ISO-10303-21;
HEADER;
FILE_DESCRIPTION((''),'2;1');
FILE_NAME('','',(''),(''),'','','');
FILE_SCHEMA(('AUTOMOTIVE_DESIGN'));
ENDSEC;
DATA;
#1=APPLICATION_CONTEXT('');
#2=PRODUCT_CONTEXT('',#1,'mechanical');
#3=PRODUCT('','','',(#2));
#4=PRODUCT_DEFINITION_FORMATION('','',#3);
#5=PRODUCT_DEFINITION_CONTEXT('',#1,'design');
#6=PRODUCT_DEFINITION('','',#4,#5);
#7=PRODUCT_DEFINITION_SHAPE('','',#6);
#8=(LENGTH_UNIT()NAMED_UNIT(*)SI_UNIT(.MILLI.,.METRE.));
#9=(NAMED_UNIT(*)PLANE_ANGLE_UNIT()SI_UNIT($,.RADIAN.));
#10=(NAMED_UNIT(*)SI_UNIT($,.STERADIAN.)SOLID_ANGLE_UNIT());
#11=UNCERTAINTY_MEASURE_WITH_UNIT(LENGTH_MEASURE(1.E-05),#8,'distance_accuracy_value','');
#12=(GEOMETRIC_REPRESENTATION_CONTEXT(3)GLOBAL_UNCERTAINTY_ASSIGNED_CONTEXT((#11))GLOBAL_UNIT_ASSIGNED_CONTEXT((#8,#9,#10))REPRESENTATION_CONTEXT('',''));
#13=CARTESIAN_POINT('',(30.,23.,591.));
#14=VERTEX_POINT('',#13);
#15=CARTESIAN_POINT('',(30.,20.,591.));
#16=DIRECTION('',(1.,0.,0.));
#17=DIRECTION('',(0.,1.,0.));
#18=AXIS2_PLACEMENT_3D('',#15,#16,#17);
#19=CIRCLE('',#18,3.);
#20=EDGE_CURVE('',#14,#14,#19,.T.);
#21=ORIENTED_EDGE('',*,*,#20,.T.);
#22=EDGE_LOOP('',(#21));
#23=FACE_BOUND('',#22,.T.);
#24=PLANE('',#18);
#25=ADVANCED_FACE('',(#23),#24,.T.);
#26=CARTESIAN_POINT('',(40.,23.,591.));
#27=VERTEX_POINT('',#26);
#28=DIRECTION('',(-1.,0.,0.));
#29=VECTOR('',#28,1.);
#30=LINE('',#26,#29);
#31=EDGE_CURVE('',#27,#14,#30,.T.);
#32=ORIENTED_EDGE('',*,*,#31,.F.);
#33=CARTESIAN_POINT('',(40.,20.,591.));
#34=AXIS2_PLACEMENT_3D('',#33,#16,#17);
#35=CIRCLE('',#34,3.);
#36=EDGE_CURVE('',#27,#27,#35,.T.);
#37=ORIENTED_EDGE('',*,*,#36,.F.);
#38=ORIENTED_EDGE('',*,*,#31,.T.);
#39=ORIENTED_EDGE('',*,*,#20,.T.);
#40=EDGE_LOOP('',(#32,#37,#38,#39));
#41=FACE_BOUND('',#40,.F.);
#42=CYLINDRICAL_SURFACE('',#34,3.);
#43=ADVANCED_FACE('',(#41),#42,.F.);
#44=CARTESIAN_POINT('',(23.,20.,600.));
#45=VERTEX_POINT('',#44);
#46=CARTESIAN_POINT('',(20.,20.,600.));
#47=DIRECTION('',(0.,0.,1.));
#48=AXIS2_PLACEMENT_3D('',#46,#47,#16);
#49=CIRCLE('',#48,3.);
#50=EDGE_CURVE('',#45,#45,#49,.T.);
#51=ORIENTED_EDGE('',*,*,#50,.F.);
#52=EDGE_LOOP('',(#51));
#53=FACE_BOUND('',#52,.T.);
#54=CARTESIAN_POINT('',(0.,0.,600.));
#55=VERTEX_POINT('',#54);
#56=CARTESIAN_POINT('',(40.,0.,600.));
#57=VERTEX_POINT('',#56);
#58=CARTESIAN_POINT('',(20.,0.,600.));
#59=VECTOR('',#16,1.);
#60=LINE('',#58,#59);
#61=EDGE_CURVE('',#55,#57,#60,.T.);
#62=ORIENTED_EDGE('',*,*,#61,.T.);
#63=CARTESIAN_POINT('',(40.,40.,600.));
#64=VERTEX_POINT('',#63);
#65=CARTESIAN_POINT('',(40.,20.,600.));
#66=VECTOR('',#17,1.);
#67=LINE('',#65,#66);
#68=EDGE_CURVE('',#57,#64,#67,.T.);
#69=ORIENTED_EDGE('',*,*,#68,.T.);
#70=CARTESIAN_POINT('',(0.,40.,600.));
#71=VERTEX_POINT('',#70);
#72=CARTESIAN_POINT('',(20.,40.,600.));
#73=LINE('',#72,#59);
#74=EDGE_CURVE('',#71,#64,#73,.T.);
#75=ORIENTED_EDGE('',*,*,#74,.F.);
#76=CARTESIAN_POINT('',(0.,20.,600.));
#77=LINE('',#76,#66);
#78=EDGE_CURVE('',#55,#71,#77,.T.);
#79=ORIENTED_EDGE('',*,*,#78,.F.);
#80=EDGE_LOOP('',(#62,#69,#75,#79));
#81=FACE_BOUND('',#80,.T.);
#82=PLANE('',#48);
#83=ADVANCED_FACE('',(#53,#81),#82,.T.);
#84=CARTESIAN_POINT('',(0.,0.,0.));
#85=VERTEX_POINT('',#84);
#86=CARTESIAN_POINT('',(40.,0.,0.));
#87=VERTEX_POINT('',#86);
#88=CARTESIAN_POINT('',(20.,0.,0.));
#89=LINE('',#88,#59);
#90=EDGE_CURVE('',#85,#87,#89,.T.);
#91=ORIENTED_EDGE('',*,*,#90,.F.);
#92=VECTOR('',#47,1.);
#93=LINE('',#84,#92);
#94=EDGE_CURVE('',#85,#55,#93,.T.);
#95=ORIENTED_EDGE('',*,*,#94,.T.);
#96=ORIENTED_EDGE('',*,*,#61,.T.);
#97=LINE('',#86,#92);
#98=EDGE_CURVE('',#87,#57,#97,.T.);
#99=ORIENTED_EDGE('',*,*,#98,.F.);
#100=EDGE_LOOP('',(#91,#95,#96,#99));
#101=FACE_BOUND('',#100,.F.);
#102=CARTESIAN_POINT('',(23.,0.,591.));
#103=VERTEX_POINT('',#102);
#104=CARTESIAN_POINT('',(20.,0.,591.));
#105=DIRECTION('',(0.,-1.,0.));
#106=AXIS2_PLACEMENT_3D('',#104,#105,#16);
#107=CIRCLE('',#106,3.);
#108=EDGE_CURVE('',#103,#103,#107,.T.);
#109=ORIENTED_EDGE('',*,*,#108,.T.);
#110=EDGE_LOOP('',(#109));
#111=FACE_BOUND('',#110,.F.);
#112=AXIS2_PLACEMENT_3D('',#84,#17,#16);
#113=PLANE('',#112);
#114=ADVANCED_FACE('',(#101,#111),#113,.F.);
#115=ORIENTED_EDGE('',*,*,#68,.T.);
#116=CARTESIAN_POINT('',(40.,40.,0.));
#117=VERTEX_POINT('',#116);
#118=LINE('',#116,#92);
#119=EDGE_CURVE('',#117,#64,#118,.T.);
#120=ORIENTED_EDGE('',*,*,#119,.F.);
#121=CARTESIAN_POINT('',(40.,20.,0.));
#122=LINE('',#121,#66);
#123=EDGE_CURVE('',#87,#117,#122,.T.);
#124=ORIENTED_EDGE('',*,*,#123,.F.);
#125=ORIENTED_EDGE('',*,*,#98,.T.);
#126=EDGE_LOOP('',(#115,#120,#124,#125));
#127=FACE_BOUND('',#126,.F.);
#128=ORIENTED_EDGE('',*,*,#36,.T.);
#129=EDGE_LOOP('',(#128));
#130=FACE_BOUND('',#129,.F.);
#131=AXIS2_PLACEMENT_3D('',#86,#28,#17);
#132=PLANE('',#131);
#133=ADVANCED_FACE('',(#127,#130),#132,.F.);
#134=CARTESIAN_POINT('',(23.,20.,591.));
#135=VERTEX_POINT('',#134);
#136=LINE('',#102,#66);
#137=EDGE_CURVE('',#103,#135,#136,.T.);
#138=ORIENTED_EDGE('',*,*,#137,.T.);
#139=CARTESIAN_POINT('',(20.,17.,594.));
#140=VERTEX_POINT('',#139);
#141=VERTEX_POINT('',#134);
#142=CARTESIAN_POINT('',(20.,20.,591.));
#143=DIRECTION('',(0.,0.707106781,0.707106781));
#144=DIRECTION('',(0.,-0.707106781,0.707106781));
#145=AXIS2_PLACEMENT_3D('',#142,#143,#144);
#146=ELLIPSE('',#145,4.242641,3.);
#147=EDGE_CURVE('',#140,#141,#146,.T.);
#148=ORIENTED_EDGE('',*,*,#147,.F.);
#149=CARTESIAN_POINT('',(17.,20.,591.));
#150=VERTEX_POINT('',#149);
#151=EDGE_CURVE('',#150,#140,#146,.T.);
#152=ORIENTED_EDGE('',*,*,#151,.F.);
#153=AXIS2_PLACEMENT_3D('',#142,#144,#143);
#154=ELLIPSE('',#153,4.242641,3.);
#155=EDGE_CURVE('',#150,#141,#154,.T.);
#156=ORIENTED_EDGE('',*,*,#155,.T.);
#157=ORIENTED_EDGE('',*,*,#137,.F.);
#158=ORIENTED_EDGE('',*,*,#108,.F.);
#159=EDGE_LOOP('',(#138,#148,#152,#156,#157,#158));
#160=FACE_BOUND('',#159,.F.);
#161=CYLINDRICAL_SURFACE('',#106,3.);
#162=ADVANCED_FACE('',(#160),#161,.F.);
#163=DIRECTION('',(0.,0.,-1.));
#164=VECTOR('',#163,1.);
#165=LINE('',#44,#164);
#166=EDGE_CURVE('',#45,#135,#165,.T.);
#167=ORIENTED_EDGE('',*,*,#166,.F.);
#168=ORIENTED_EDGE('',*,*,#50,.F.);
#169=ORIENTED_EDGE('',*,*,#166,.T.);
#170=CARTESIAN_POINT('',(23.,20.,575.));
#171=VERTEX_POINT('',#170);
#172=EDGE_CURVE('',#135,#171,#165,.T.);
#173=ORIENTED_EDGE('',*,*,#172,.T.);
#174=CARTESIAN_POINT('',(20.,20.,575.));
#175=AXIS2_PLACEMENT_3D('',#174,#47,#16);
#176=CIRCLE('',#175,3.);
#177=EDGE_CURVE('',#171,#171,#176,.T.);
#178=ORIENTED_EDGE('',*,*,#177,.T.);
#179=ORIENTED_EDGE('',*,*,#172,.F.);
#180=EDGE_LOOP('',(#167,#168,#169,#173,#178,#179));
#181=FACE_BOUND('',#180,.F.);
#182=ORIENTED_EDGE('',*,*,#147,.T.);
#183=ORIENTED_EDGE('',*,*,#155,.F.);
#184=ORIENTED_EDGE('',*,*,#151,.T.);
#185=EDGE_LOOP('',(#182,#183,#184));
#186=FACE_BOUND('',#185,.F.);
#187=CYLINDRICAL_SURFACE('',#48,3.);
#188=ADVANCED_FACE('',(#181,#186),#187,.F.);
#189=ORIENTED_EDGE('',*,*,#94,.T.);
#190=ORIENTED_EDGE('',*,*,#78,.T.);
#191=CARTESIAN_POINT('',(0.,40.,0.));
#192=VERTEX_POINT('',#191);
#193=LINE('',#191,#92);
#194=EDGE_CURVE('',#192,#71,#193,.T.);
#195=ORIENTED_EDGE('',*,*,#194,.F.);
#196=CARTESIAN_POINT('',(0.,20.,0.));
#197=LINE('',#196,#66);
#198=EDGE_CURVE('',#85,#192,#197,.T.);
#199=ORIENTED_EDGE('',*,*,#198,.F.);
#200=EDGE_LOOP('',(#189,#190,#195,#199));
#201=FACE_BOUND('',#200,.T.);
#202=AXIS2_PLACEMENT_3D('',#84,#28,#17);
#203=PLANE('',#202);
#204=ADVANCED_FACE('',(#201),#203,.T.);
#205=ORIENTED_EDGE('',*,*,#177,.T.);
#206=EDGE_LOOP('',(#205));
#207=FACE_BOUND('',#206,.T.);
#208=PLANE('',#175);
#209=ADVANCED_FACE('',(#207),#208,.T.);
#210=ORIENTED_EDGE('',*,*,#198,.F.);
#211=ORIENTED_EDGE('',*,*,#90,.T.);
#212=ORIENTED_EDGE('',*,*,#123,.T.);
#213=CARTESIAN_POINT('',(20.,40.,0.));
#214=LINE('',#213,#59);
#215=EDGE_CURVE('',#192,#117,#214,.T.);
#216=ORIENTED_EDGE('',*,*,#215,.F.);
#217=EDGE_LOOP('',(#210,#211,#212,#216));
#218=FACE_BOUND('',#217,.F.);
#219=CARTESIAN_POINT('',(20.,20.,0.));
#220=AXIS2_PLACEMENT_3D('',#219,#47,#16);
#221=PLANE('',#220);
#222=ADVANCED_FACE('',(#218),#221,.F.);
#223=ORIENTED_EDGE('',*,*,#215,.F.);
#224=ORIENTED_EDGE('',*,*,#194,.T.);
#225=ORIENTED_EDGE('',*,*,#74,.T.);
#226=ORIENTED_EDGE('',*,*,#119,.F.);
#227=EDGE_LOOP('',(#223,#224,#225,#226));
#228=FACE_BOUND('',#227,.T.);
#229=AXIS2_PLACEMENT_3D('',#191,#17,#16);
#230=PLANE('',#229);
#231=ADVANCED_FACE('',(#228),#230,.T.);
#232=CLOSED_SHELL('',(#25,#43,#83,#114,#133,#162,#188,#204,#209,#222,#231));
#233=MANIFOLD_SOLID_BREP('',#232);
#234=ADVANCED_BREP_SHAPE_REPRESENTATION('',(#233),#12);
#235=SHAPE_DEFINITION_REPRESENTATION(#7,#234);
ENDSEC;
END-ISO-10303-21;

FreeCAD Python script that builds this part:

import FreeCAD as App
import Part
import Sketcher
from FreeCAD import Vector


def add_polygon(sketch, points):
    """Adds a closed chain of lines whose ends are joined by coincident constraints."""
    first, n = sketch.GeometryCount, len(points)
    for a, b in zip(points, points[1:] + points[:1]):
        sketch.addGeometry(Part.LineSegment(App.Vector(*a, 0), App.Vector(*b, 0)), False)
    for i in range(n):
        sketch.addConstraint(Sketcher.Constraint("Coincident", first + i, 2, first + (i + 1) % n, 1))

doc = App.newDocument("Part")
body = doc.addObject("PartDesign::Body", "Body")

sketch1 = doc.addObject("Sketcher::SketchObject", "Sketch")
body.addObject(sketch1)
sketch1.AttachmentSupport = (doc.XY_Plane, [""])
sketch1.MapMode = "FlatFace"
add_polygon(sketch1, [(0, 40), (0, 0), (40, 0), (40, 40)])
sketch1.addConstraint([
    Sketcher.Constraint("Vertical", 0),
    Sketcher.Constraint("Horizontal", 1),
    Sketcher.Constraint("Vertical", 2),
    Sketcher.Constraint("Horizontal", 3),
    Sketcher.Constraint("Coincident", 0, 2, -1, 1),
    Sketcher.Constraint("Equal", 3, 0),
    Sketcher.Constraint("DistanceX", 1, 1, 1, 2, 40.0),
])
pad1 = doc.addObject("PartDesign::Pad", "Pad")
body.addObject(pad1)
pad1.Profile = sketch1
pad1.Length = 600

sketch2 = doc.addObject("Sketcher::SketchObject", "Sketch001")
body.addObject(sketch2)
sketch2.AttachmentSupport = (doc.XY_Plane, [""])
sketch2.MapMode = "FlatFace"
sketch2.AttachmentOffset = App.Placement(Vector(0, 0, 600), App.Rotation())
sketch2.addGeometry(Part.Circle(Vector(20, 20, 0), Vector(0, 0, 1), 3), False)
sketch2.addConstraint([
    Sketcher.Constraint("Diameter", 0, 6.0),
    Sketcher.Constraint("DistanceX", -1, 1, 0, 3, 20.0),
    Sketcher.Constraint("DistanceY", -1, 1, 0, 3, 20.0),
])
pocket1 = doc.addObject("PartDesign::Pocket", "Pocket")
body.addObject(pocket1)
pocket1.Profile = sketch2
pocket1.Length = 25

sketch3 = doc.addObject("Sketcher::SketchObject", "Sketch002")
body.addObject(sketch3)
sketch3.AttachmentSupport = (doc.XZ_Plane, [""])
sketch3.MapMode = "FlatFace"
sketch3.addGeometry(Part.Circle(Vector(20, 591, 0), Vector(0, 0, 1), 3), False)
sketch3.addConstraint([
    Sketcher.Constraint("Diameter", 0, 6.0),
    Sketcher.Constraint("DistanceX", -1, 1, 0, 3, 20.0),
    Sketcher.Constraint("DistanceY", -1, 1, 0, 3, 591.0),
])
pocket2 = doc.addObject("PartDesign::Pocket", "Pocket001")
body.addObject(pocket2)
pocket2.Profile = sketch3
pocket2.Length = 20

sketch4 = doc.addObject("Sketcher::SketchObject", "Sketch003")
body.addObject(sketch4)
sketch4.AttachmentSupport = (doc.YZ_Plane, [""])
sketch4.MapMode = "FlatFace"
sketch4.AttachmentOffset = App.Placement(Vector(0, 0, 40), App.Rotation())
sketch4.addGeometry(Part.Circle(Vector(20, 591, 0), Vector(0, 0, 1), 3), False)
sketch4.addConstraint([
    Sketcher.Constraint("Diameter", 0, 6.0),
    Sketcher.Constraint("DistanceX", -1, 1, 0, 3, 20.0),
    Sketcher.Constraint("DistanceY", -1, 1, 0, 3, 591.0),
])
pocket3 = doc.addObject("PartDesign::Pocket", "Pocket002")
body.addObject(pocket3)
pocket3.Profile = sketch4
pocket3.Length = 10

doc.recompute()
